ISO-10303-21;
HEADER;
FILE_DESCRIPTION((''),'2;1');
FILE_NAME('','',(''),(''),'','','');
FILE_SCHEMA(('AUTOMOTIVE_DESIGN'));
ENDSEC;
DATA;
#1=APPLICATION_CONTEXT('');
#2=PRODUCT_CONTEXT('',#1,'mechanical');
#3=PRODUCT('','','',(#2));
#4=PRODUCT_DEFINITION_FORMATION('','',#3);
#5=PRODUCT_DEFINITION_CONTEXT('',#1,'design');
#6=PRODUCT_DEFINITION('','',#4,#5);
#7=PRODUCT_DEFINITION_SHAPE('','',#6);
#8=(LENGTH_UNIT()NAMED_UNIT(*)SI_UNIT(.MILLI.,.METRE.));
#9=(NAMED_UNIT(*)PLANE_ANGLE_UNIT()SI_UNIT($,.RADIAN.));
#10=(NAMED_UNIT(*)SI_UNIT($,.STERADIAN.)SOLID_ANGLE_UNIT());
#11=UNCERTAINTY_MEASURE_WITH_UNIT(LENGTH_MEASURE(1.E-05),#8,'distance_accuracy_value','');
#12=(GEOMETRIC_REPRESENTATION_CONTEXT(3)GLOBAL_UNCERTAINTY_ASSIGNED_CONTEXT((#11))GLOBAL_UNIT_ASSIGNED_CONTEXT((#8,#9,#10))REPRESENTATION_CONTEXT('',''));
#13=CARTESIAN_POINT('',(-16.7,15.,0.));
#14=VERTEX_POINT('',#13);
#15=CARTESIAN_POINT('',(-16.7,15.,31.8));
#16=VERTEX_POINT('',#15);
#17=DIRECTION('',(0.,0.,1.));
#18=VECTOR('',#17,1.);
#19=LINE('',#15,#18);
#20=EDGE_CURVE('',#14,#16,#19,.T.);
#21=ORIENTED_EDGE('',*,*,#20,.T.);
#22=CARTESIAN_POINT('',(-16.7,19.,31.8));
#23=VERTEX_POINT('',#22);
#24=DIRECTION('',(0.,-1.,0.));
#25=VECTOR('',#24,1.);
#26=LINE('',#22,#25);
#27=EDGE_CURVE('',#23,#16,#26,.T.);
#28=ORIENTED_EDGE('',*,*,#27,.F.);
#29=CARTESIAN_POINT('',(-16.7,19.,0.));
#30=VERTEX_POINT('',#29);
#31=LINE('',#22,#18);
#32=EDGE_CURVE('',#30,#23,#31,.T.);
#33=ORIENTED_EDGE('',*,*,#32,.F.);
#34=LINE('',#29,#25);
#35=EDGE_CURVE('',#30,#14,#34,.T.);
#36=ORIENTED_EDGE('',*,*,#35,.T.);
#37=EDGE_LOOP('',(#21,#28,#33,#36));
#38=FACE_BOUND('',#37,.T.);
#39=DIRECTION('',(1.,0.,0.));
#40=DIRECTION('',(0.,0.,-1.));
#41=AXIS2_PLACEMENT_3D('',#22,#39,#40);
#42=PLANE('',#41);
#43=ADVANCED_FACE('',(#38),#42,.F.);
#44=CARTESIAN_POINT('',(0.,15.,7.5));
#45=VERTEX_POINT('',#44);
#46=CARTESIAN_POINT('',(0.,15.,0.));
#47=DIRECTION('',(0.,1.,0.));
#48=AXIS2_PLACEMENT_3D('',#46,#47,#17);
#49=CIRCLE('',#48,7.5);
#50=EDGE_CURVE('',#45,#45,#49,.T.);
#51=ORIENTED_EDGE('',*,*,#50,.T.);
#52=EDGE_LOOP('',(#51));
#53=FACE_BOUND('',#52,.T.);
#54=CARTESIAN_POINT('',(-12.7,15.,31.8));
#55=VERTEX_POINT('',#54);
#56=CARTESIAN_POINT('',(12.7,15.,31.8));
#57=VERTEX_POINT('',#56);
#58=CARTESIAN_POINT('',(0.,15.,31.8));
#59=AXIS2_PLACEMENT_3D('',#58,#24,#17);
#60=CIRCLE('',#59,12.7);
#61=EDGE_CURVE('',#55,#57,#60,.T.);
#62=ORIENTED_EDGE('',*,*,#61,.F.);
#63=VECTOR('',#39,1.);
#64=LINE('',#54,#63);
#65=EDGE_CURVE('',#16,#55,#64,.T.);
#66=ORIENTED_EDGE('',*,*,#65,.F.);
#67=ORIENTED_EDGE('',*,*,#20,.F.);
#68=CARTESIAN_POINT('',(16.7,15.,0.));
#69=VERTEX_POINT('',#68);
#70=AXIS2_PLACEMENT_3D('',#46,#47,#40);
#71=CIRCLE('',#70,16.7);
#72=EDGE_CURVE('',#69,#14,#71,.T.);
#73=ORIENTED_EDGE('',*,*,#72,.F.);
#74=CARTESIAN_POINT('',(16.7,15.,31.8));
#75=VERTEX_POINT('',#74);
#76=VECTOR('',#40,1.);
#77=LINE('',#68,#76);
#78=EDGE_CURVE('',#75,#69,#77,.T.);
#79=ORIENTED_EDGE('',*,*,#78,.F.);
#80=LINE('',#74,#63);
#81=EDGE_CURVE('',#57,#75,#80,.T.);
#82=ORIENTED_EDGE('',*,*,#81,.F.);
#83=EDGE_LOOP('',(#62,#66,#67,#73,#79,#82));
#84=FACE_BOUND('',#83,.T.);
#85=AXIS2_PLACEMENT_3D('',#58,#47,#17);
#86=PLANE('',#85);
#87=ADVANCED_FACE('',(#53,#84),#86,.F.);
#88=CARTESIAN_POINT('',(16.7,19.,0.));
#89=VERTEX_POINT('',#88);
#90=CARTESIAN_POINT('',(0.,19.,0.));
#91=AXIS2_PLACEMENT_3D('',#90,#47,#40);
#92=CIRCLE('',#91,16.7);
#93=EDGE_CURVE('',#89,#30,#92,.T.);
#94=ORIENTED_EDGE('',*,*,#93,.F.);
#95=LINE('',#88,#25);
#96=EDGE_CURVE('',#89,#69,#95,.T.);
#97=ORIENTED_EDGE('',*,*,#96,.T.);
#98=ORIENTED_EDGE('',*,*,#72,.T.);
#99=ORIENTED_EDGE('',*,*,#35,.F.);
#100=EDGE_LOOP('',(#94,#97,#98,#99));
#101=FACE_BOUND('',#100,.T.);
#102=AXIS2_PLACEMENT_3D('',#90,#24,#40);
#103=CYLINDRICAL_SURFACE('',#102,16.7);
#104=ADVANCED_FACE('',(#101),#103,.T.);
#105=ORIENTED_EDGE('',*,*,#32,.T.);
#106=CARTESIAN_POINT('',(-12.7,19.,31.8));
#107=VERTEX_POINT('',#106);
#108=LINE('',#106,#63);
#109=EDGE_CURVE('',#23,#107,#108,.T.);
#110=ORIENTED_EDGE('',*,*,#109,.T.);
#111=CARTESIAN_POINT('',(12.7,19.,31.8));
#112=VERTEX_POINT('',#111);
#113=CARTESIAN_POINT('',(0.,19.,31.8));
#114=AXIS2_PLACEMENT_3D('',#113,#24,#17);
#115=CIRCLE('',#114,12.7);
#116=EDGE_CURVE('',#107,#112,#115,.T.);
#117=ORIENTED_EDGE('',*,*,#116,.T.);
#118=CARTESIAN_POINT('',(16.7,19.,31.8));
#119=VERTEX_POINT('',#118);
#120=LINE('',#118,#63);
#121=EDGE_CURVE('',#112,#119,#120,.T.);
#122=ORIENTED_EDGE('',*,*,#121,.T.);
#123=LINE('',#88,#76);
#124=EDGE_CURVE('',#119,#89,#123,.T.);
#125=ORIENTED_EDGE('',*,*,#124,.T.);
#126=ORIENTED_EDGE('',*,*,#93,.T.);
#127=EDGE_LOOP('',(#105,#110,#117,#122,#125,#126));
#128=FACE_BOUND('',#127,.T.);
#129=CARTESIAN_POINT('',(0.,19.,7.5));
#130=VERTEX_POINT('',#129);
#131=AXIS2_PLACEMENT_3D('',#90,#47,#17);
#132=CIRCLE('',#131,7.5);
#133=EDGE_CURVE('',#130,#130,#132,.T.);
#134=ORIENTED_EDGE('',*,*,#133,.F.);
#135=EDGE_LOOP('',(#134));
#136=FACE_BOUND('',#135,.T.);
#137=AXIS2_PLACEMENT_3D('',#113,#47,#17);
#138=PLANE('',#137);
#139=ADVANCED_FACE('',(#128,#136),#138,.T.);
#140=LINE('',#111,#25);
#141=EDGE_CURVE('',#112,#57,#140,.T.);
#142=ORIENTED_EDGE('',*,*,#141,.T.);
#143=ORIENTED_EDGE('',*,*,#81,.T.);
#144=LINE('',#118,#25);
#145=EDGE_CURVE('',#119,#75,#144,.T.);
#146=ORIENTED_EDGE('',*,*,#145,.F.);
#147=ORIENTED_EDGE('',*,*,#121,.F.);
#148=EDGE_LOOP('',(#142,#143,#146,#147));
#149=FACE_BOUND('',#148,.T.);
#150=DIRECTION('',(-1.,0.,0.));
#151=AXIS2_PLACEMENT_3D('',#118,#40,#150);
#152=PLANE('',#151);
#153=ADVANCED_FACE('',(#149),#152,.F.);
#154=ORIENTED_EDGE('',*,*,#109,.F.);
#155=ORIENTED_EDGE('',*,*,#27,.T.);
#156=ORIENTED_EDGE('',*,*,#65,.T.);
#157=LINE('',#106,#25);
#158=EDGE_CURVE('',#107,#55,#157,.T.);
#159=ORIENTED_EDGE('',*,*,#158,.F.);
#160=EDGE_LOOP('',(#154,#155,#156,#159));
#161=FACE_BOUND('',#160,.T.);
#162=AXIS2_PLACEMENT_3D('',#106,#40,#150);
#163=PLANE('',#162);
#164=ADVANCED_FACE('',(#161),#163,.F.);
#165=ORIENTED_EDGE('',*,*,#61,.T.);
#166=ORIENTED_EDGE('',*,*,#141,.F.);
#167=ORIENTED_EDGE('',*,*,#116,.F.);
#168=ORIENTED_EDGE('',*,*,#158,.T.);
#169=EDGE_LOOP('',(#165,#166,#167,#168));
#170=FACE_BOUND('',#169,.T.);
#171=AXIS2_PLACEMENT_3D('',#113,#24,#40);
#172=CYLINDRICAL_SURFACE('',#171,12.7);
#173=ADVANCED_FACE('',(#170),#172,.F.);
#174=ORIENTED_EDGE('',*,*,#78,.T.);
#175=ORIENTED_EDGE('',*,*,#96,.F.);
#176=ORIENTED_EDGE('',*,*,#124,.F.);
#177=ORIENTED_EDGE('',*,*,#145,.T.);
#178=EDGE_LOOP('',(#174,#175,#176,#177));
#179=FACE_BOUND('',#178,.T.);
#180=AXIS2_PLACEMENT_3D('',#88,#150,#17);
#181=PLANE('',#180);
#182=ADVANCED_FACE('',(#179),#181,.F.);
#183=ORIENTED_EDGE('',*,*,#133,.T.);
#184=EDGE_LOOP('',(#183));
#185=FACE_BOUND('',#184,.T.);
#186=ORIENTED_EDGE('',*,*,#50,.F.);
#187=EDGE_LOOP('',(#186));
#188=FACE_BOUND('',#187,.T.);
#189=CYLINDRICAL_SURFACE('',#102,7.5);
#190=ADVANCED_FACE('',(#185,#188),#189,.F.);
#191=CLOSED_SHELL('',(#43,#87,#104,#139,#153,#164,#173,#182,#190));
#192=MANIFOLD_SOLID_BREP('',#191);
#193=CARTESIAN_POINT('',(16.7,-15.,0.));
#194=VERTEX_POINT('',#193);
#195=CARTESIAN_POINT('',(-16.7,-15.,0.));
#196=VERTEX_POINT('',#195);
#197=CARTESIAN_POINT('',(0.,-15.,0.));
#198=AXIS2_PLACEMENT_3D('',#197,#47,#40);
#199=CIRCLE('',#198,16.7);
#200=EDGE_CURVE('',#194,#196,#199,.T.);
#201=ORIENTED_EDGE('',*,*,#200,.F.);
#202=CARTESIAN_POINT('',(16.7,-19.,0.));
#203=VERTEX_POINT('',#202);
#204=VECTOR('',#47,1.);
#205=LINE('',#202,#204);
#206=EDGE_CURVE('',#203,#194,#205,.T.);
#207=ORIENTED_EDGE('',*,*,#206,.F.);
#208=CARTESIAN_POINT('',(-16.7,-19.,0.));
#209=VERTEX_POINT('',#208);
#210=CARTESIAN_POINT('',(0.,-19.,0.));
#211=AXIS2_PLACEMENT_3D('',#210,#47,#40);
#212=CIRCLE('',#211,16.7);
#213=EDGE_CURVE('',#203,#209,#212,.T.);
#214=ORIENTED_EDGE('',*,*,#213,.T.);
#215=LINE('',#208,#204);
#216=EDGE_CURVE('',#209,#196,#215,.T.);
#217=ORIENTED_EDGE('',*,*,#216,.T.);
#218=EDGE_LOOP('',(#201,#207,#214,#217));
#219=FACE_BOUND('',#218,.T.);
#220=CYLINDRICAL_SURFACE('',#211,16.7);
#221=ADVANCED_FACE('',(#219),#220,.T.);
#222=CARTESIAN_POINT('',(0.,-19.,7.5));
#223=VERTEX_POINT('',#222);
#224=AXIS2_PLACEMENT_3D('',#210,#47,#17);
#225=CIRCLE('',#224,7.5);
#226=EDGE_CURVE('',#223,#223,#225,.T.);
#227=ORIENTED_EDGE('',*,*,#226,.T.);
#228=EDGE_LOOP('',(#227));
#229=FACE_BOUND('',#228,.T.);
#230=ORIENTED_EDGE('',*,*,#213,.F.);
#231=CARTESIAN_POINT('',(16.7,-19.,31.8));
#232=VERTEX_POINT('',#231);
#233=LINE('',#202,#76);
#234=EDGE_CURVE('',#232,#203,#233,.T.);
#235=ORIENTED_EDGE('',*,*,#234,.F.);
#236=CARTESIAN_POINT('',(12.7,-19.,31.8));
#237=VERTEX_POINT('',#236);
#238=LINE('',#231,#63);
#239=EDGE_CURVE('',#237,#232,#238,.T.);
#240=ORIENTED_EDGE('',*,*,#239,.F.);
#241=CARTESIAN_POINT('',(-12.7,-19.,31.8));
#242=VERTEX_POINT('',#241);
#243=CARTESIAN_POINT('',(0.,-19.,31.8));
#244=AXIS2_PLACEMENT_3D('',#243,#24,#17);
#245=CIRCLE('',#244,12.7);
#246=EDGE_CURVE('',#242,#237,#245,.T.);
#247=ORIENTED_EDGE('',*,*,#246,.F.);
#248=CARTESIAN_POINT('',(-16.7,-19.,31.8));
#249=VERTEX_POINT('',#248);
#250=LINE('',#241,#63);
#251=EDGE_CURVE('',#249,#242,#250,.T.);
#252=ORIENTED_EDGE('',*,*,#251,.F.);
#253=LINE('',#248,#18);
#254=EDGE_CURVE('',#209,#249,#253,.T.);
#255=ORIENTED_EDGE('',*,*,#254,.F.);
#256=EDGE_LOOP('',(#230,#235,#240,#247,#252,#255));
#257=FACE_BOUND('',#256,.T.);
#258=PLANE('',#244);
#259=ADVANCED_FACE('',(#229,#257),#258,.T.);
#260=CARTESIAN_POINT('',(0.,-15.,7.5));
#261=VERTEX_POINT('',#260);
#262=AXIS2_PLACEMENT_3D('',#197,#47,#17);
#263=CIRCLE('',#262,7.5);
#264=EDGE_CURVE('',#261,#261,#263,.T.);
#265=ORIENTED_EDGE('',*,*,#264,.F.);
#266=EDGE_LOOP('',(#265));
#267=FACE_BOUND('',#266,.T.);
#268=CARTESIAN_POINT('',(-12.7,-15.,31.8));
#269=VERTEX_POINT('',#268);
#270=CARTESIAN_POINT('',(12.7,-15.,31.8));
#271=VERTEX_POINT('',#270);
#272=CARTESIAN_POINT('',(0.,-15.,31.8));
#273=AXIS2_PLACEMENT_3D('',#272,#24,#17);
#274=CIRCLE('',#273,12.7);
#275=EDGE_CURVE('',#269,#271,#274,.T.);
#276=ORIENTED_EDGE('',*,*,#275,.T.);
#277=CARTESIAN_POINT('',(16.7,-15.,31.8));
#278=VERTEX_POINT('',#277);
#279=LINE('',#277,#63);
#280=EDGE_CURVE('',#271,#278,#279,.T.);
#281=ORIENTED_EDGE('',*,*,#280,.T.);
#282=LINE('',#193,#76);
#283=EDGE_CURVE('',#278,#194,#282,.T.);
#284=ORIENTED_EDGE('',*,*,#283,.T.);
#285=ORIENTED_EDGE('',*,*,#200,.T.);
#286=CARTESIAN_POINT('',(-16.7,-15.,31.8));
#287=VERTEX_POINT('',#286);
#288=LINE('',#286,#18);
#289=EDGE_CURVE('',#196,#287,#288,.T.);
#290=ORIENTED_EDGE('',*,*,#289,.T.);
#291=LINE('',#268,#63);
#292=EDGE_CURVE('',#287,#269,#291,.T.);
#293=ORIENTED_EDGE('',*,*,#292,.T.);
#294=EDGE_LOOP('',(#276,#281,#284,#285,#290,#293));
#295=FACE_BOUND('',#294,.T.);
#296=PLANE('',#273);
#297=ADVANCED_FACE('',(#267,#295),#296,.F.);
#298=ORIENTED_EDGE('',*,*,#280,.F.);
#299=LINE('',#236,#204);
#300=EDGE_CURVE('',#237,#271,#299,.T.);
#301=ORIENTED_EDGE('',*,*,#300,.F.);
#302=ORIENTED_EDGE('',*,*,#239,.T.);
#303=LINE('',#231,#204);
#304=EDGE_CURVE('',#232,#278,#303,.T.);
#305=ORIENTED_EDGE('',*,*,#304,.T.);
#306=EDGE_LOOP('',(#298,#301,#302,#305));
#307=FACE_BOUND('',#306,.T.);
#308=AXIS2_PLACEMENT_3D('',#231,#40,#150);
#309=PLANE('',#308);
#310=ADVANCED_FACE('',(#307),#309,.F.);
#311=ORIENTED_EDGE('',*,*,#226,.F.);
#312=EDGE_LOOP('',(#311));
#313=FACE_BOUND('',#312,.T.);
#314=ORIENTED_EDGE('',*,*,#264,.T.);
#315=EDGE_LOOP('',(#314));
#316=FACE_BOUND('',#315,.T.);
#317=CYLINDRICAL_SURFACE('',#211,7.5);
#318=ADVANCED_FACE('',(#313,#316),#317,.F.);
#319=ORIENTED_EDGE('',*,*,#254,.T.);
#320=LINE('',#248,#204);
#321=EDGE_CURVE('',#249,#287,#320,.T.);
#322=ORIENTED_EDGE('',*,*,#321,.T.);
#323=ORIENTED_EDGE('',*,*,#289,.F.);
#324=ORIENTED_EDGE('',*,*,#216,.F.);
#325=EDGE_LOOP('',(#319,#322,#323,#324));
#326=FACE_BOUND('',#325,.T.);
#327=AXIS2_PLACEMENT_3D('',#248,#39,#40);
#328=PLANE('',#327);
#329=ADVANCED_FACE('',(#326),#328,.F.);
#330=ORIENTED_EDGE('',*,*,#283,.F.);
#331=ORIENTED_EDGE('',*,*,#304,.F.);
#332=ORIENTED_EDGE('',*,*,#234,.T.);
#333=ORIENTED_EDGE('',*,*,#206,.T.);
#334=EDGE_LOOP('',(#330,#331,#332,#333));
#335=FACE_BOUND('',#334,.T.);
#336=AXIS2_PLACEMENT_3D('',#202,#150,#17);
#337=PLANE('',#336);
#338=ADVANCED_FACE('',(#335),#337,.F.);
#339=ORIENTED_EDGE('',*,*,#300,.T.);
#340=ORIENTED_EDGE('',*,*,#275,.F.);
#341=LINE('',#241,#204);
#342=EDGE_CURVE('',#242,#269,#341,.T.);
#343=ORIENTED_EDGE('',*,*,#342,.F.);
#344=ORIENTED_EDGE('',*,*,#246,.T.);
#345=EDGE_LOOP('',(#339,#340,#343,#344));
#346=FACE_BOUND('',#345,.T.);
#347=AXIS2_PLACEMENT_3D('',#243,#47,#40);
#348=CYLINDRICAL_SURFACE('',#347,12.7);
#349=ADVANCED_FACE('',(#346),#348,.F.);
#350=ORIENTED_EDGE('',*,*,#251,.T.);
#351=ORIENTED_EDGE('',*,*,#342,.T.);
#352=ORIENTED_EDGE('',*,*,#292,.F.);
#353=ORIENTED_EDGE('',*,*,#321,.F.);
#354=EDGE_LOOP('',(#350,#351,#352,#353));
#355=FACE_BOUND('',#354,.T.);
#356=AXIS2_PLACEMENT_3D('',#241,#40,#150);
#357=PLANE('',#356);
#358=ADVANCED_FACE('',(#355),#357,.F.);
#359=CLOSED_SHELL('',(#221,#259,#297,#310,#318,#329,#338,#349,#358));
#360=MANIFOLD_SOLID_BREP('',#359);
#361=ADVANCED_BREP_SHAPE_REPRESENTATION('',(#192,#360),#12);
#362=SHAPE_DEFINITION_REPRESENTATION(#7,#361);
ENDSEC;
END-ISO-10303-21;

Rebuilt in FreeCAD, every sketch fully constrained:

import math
import FreeCAD as App
import Part
import Sketcher

V = App.Vector
Q = App.Units.Quantity

doc = App.newDocument("Part")
body = doc.addObject("PartDesign::Body", "Body")

sketch1 = body.newObject("Sketcher::SketchObject", "Sketch")
sketch1.AttachmentSupport = (doc.getObject("XZ_Plane"), [""])
sketch1.MapMode = "FlatFace"
sketch1.AttachmentOffset = App.Placement(V(0, 0, -15), App.Rotation())
sketch1.addGeometry([
    Part.LineSegment(V(12.7, 31.8, 0), V(16.7, 31.8, 0)),
    Part.LineSegment(V(16.7, 31.8, 0), V(16.7, 0, 0)),
    Part.ArcOfCircle(Part.Circle(V(0, 0, 0), V(0, 0, 1), 16.7), math.radians(180), math.radians(360)),
    Part.LineSegment(V(-16.7, 0, 0), V(-16.7, 31.8, 0)),
    Part.LineSegment(V(-16.7, 31.8, 0), V(-12.7, 31.8, 0)),
    Part.ArcOfCircle(Part.Circle(V(0, 31.8, 0), V(0, 0, 1), 12.7), math.radians(180), math.radians(360)),
    Part.Circle(V(0, 0, 0), V(0, 0, 1), 7.5),
], False)
sketch1.addConstraint([
    Sketcher.Constraint("Coincident", 0, 2, 1, 1),
    Sketcher.Constraint("Tangent", 1, 2, 2, 2),
    Sketcher.Constraint("Tangent", 2, 1, 3, 1),
    Sketcher.Constraint("Coincident", 3, 2, 4, 1),
    Sketcher.Constraint("Coincident", 4, 2, 5, 1),
    Sketcher.Constraint("Coincident", 5, 2, 0, 1),
    Sketcher.Constraint("Horizontal", 0),
    Sketcher.Constraint("Vertical", 1),
    Sketcher.Constraint("Vertical", 3),
    Sketcher.Constraint("Horizontal", 4),
    Sketcher.Constraint("Coincident", 2, 3, -1, 1),
    Sketcher.Constraint("Coincident", 6, 3, -1, 1),
    Sketcher.Constraint("Symmetric", 4, 2, 5, 2, -2),
    Sketcher.Constraint("Horizontal", 5, 3, 0, 2),
    Sketcher.Constraint("Diameter", 6, Q("15 mm")),
    Sketcher.Constraint("Radius", 2, Q("16.7 mm")),
    Sketcher.Constraint("Radius", 5, Q("12.7 mm")),
    Sketcher.Constraint("DistanceY", 1, 2, 1, 1, Q("31.8 mm")),
])
pad1 = body.newObject("PartDesign::Pad", "Pad")
pad1.Profile = sketch1
pad1.Length = 4
pad1.Reversed = True
body2 = doc.addObject("PartDesign::Body", "Body001")
doc.recompute()

mirroring = doc.addObject("Part::Mirroring", "Mirroring")
mirroring.Source = body
mirroring.Base = V(0, 0, 0)
mirroring.Normal = V(0, 1, 0)
body2.BaseFeature = mirroring
doc.recompute()
mirroring.Visibility = False

doc.recompute()
